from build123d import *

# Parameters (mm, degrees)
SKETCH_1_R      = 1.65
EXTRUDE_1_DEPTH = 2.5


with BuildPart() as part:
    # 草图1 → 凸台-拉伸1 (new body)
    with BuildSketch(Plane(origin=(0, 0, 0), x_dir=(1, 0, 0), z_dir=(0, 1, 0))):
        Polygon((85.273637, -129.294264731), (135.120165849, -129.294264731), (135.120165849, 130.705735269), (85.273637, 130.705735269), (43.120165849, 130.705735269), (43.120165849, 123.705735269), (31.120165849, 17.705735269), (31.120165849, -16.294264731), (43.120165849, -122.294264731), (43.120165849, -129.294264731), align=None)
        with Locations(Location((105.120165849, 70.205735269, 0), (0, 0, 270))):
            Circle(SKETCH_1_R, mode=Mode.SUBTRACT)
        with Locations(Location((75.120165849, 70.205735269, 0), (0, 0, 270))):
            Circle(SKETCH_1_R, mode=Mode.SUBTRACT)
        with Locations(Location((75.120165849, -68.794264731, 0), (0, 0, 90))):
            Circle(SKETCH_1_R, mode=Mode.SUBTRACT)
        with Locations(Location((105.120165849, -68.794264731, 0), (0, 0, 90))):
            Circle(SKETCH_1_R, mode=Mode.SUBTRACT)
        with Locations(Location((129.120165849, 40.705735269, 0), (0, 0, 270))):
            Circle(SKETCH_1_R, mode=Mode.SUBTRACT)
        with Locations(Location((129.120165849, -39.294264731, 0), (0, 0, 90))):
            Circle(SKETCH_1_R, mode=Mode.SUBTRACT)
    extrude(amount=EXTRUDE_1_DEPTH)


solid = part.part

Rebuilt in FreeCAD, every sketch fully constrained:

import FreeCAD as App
import Part
import Sketcher
from FreeCAD import Vector

doc = App.newDocument("Part")
body = doc.addObject("PartDesign::Body", "Body")

# Sketch on XZ plane
sketch1 = body.newObject("Sketcher::SketchObject", "Sketch")
sketch1.AttachmentSupport = (doc.getObject("XZ_Plane"), [""])
sketch1.MapMode = "FlatFace"
sketch1.addGeometry(Part.LineSegment(Vector(135.1, 129.3, 0), Vector(135.1, -130.7, 0)), False)
sketch1.addGeometry(Part.LineSegment(Vector(135.1, -130.7, 0), Vector(43.1, -130.7, 0)), False)
sketch1.addGeometry(Part.LineSegment(Vector(43.1, -130.7, 0), Vector(43.1, -123.7, 0)), False)
sketch1.addGeometry(Part.LineSegment(Vector(43.1, -123.7, 0), Vector(31.1, -17.7, 0)), False)
sketch1.addGeometry(Part.LineSegment(Vector(31.1, -17.7, 0), Vector(31.1, 16.3, 0)), False)
sketch1.addGeometry(Part.LineSegment(Vector(31.1, 16.3, 0), Vector(43.1, 122.3, 0)), False)
sketch1.addGeometry(Part.LineSegment(Vector(43.1, 122.3, 0), Vector(43.1, 129.3, 0)), False)
sketch1.addGeometry(Part.LineSegment(Vector(43.1, 129.3, 0), Vector(135.1, 129.3, 0)), False)
sketch1.addGeometry(Part.Circle(Vector(75.1, 68.8, 0), Vector(0, 0, 1), 1.6), False)
sketch1.addGeometry(Part.Circle(Vector(105.1, 68.8, 0), Vector(0, 0, 1), 1.6), False)
sketch1.addGeometry(Part.Circle(Vector(129.1, 39.3, 0), Vector(0, 0, 1), 1.6), False)
sketch1.addGeometry(Part.Circle(Vector(75.1, -70.2, 0), Vector(0, 0, 1), 1.6), False)
sketch1.addGeometry(Part.Circle(Vector(105.1, -70.2, 0), Vector(0, 0, 1), 1.6), False)
sketch1.addGeometry(Part.Circle(Vector(129.1, -40.7, 0), Vector(0, 0, 1), 1.6), False)
sketch1.addConstraint(Sketcher.Constraint("Coincident", 0, 2, 1, 1))
sketch1.addConstraint(Sketcher.Constraint("Coincident", 1, 2, 2, 1))
sketch1.addConstraint(Sketcher.Constraint("Coincident", 2, 2, 3, 1))
sketch1.addConstraint(Sketcher.Constraint("Coincident", 3, 2, 4, 1))
sketch1.addConstraint(Sketcher.Constraint("Coincident", 4, 2, 5, 1))
sketch1.addConstraint(Sketcher.Constraint("Coincident", 5, 2, 6, 1))
sketch1.addConstraint(Sketcher.Constraint("Coincident", 6, 2, 7, 1))
sketch1.addConstraint(Sketcher.Constraint("Coincident", 7, 2, 0, 1))
sketch1.addConstraint(Sketcher.Constraint("Vertical", 0))
sketch1.addConstraint(Sketcher.Constraint("Horizontal", 1))
sketch1.addConstraint(Sketcher.Constraint("Vertical", 2))
sketch1.addConstraint(Sketcher.Constraint("Vertical", 4))
sketch1.addConstraint(Sketcher.Constraint("Vertical", 6))
sketch1.addConstraint(Sketcher.Constraint("Horizontal", 7))
sketch1.addConstraint(Sketcher.Constraint("Equal", 8, 9))
sketch1.addConstraint(Sketcher.Constraint("Equal", 9, 10))
sketch1.addConstraint(Sketcher.Constraint("Equal", 10, 11))
sketch1.addConstraint(Sketcher.Constraint("Equal", 11, 12))
sketch1.addConstraint(Sketcher.Constraint("Equal", 12, 13))
sketch1.addConstraint(Sketcher.Constraint("Horizontal", 8, 3, 9, 3))
sketch1.addConstraint(Sketcher.Constraint("Horizontal", 11, 3, 12, 3))
sketch1.addConstraint(Sketcher.Constraint("Vertical", 8, 3, 11, 3))
sketch1.addConstraint(Sketcher.Constraint("Vertical", 9, 3, 12, 3))
sketch1.addConstraint(Sketcher.Constraint("Vertical", 10, 3, 13, 3))
sketch1.addConstraint(Sketcher.Constraint("Vertical", 2, 2, 5, 2))
sketch1.addConstraint(Sketcher.Constraint("Equal", 2, 6))
sketch1.addConstraint(Sketcher.Constraint("Equal", 3, 5))
sketch1.addConstraint(Sketcher.Constraint("Diameter", 8, 3.3))
sketch1.addConstraint(Sketcher.Constraint("DistanceX", 1, 2, 1, 1, 92.0))
sketch1.addConstraint(Sketcher.Constraint("DistanceY", 0, 2, 0, 1, 260.0))
sketch1.addConstraint(Sketcher.Constraint("DistanceY", 2, 1, 2, 2, 7.0))
sketch1.addConstraint(Sketcher.Constraint("DistanceY", 4, 1, 4, 2, 34.0))
sketch1.addConstraint(Sketcher.Constraint("DistanceX", 8, 3, 9, 3, 30.0))
sketch1.addConstraint(Sketcher.Constraint("DistanceX", 9, 3, 10, 3, 24.0))
sketch1.addConstraint(Sketcher.Constraint("DistanceY", 11, 3, 8, 3, 139.0))
sketch1.addConstraint(Sketcher.Constraint("DistanceY", 13, 3, 10, 3, 80.0))
sketch1.addConstraint(Sketcher.Constraint("DistanceX", 12, 3, 0, 2, 30.0))
sketch1.addConstraint(Sketcher.Constraint("DistanceY", 0, 2, 13, 3, 90.0))
sketch1.addConstraint(Sketcher.Constraint("DistanceX", 3, 2, 11, 3, 44.0))
sketch1.addConstraint(Sketcher.Constraint("DistanceY", 10, 3, 9, 3, 29.5))
sketch1.addConstraint(Sketcher.Constraint("DistanceX", -1, 1, 8, 3, 75.120166))
sketch1.addConstraint(Sketcher.Constraint("DistanceY", -1, 1, 8, 3, 68.794265))
pad1 = body.newObject("PartDesign::Pad", "Pad")
pad1.Profile = sketch1
pad1.Length = 2.5
pad1.Reversed = True

doc.recompute()
